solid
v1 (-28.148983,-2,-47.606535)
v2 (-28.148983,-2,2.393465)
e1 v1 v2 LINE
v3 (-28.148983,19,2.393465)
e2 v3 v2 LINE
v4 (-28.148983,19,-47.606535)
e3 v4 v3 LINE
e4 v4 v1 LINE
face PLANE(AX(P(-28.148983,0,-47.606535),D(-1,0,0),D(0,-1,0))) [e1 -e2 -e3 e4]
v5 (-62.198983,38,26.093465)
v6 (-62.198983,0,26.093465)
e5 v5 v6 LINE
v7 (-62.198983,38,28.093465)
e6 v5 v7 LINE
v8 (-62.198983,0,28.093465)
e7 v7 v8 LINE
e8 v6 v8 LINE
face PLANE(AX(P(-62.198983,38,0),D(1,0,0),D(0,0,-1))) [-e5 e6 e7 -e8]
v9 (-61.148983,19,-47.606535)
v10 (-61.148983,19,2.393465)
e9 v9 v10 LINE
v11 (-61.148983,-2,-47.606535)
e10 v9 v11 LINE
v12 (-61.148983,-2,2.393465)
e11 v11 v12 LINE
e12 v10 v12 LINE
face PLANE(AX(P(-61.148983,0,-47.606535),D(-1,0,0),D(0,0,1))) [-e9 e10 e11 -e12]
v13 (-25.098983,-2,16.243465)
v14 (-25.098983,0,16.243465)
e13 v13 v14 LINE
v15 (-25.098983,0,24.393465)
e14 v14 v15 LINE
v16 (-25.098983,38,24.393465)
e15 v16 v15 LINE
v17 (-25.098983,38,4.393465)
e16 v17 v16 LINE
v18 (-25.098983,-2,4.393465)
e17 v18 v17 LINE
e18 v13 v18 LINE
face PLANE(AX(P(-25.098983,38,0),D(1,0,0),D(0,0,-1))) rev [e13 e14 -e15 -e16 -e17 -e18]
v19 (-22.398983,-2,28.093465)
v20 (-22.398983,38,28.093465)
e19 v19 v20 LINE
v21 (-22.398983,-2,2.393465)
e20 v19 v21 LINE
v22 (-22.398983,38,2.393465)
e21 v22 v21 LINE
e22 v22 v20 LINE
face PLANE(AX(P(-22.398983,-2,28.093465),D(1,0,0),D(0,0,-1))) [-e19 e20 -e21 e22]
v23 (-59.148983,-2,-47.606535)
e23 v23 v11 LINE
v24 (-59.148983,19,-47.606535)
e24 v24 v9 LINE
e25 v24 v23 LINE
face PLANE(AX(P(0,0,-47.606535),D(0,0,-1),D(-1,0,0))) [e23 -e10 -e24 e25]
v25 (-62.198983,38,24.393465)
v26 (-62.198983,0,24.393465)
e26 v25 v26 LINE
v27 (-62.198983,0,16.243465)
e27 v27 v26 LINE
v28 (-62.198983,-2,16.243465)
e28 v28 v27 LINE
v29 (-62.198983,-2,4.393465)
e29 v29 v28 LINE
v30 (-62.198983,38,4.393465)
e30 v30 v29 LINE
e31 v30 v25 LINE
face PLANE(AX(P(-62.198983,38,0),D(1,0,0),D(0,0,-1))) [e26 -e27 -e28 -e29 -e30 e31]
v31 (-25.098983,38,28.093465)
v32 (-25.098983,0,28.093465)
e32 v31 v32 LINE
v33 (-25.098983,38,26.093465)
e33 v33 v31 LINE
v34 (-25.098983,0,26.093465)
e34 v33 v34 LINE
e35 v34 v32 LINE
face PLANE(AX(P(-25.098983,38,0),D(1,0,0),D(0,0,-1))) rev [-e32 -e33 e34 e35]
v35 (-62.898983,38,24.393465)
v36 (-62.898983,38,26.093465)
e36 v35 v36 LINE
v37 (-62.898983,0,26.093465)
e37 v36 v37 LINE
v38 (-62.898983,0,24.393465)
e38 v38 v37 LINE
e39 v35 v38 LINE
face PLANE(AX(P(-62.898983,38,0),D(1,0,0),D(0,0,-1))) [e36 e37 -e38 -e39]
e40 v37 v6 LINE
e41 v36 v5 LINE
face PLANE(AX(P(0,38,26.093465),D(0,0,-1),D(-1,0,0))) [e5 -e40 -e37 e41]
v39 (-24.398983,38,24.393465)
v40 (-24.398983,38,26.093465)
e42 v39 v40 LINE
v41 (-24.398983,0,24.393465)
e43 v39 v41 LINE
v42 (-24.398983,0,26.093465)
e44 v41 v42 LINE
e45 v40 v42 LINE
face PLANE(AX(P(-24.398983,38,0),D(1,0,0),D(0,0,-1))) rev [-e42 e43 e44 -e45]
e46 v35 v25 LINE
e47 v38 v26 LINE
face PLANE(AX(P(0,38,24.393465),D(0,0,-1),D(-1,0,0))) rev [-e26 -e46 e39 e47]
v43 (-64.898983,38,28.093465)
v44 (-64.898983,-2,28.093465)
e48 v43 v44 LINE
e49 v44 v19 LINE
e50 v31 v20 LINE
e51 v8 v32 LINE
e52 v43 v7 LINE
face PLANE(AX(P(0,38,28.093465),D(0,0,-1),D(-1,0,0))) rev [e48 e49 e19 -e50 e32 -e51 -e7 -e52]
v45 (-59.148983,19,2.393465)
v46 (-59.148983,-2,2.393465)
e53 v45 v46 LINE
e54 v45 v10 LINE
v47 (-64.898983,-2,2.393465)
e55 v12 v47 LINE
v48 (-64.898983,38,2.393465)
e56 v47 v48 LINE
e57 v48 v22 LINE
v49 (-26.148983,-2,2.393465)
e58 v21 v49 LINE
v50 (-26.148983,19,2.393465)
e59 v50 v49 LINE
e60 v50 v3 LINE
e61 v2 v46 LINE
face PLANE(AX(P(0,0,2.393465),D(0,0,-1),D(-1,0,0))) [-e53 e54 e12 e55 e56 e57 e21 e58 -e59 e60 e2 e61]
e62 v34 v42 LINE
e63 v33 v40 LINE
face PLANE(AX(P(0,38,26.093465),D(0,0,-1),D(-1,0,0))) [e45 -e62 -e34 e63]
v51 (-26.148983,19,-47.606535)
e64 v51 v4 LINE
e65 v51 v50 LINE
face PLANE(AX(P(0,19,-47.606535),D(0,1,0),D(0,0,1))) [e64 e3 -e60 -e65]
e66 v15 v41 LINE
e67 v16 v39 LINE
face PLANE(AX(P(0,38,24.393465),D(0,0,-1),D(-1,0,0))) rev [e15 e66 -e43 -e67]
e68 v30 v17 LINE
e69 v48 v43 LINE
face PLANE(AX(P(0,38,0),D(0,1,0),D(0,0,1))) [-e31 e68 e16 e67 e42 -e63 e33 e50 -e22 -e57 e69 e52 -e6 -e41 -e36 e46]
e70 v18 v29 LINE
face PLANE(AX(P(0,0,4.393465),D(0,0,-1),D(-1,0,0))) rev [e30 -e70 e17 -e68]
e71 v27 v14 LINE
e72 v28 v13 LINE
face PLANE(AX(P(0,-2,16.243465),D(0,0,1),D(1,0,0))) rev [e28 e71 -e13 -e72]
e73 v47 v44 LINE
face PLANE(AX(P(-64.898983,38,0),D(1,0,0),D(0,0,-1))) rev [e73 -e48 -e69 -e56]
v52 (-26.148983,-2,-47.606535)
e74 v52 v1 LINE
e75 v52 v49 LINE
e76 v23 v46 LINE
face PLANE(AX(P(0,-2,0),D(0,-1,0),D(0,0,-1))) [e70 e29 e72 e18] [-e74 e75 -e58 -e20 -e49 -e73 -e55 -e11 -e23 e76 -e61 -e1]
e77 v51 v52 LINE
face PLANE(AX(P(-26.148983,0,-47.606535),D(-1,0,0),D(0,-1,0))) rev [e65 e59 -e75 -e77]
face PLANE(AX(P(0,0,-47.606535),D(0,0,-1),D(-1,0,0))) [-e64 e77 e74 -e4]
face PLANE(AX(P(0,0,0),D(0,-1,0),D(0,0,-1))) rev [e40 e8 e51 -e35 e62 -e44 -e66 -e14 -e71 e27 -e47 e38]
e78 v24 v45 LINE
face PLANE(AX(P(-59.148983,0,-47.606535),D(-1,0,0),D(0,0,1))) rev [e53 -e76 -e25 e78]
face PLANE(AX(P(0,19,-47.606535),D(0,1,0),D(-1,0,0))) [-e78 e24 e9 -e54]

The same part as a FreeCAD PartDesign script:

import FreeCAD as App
import Part
import Sketcher
Q = App.Units.Quantity

doc = App.newDocument("Part")
params = doc.addObject("Spreadsheet::Sheet", "Params")
for row, (alias, value) in enumerate([
    ("sketch1_height", "2 mm"),
    ("sketch1_width", "0.7 mm"),
    ("sketch1_width2", "2.7 mm"),
    ("sketch1_height2", "1.7 mm"),
    ("pad1_length", "38 mm"),
    ("sketch2_height", "2 mm"),
    ("sketch2_width", "0.7 mm"),
    ("sketch2_width2", "2.7 mm"),
    ("sketch2_height2", "1.7 mm"),
    ("pad2_length", "38 mm"),
    ("sketch3_width", "42.5 mm"),
    ("sketch3_height", "5.7 mm"),
    ("pad3_length", "2 mm"),
    ("sketch4_height", "38 mm"),
    ("sketch4_height2", "40 mm"),
    ("sketch4_width", "2.7 mm"),
    ("sketch4_width2", "37.1 mm"),
    ("pad4_length", "18 mm"),
    ("sketch5_height", "40 mm"),
    ("sketch5_width", "42.5 mm"),
    ("pad5_length", "2 mm"),
    ("sketch6_width", "37.1 mm"),
    ("sketch6_height", "11.85 mm"),
    ("sketch7_width", "2 mm"),
    ("sketch7_height", "21 mm"),
    ("pad6_length", "50 mm"),
], start=1):
    params.set(f"A{row}", alias)
    params.set(f"B{row}", "=" + value)
    params.setAlias(f"B{row}", alias)

body = doc.addObject("PartDesign::Body", "Body")

# Sketch on XZ plane
sketch1 = doc.addObject("Sketcher::SketchObject", "Sketch")
body.addObject(sketch1)
sketch1.AttachmentSupport = (doc.XZ_Plane, [""])
sketch1.MapMode = "FlatFace"
sketch1.addGeometry(Part.LineSegment(App.Vector(-62.898983, 26.093465, 0), App.Vector(-62.898983, 24.393465, 0)), False)
sketch1.addGeometry(Part.LineSegment(App.Vector(-62.898983, 24.393465, 0), App.Vector(-62.198983, 24.393465, 0)), False)
sketch1.addGeometry(Part.LineSegment(App.Vector(-62.198983, 24.393465, 0), App.Vector(-62.198983, 22.393465, 0)), False)
sketch1.addGeometry(Part.LineSegment(App.Vector(-62.198983, 22.393465, 0), App.Vector(-64.898983, 22.393465, 0)), False)
sketch1.addGeometry(Part.LineSegment(App.Vector(-64.898983, 22.393465, 0), App.Vector(-64.898983, 28.093465, 0)), False)
sketch1.addGeometry(Part.LineSegment(App.Vector(-64.898983, 28.093465, 0), App.Vector(-62.198983, 28.093465, 0)), False)
sketch1.addGeometry(Part.LineSegment(App.Vector(-62.198983, 28.093465, 0), App.Vector(-62.198983, 26.093465, 0)), False)
sketch1.addGeometry(Part.LineSegment(App.Vector(-62.198983, 26.093465, 0), App.Vector(-62.898983, 26.093465, 0)), False)
sketch1.addConstraint(Sketcher.Constraint("Coincident", 0, 2, 1, 1))
sketch1.addConstraint(Sketcher.Constraint("Coincident", 1, 2, 2, 1))
sketch1.addConstraint(Sketcher.Constraint("Coincident", 2, 2, 3, 1))
sketch1.addConstraint(Sketcher.Constraint("Coincident", 3, 2, 4, 1))
sketch1.addConstraint(Sketcher.Constraint("Coincident", 4, 2, 5, 1))
sketch1.addConstraint(Sketcher.Constraint("Coincident", 5, 2, 6, 1))
sketch1.addConstraint(Sketcher.Constraint("Coincident", 6, 2, 7, 1))
sketch1.addConstraint(Sketcher.Constraint("Coincident", 7, 2, 0, 1))
sketch1.addConstraint(Sketcher.Constraint("Vertical", 0))
sketch1.addConstraint(Sketcher.Constraint("Horizontal", 1))
sketch1.addConstraint(Sketcher.Constraint("Vertical", 2))
sketch1.addConstraint(Sketcher.Constraint("Horizontal", 3))
sketch1.addConstraint(Sketcher.Constraint("Vertical", 4))
sketch1.addConstraint(Sketcher.Constraint("Horizontal", 5))
sketch1.addConstraint(Sketcher.Constraint("Vertical", 6))
sketch1.addConstraint(Sketcher.Constraint("Horizontal", 7))
sketch1.addConstraint(Sketcher.Constraint("Vertical", 2, 2, 5, 2))
sketch1.addConstraint(Sketcher.Constraint("Equal", 2, 6))
sketch1.addConstraint(Sketcher.Constraint("DistanceY", 2, 2, 2, 1, Q("2 mm")))
sketch1.addConstraint(Sketcher.Constraint("DistanceX", 1, 1, 1, 2, Q("0.7 mm")))
sketch1.addConstraint(Sketcher.Constraint("DistanceX", 3, 2, 3, 1, Q("2.7 mm")))
sketch1.addConstraint(Sketcher.Constraint("DistanceY", 0, 2, 0, 1, Q("1.7 mm")))
sketch1.addConstraint(Sketcher.Constraint("DistanceX", 0, 2, -1, 1, Q("62.898983 mm")))
sketch1.addConstraint(Sketcher.Constraint("DistanceY", -1, 1, 0, 2, Q("24.393465 mm")))
sketch1.setExpression("Constraints[18]", "Params.sketch1_height")
sketch1.setExpression("Constraints[19]", "Params.sketch1_width")
sketch1.setExpression("Constraints[20]", "Params.sketch1_width2")
sketch1.setExpression("Constraints[21]", "Params.sketch1_height2")
pad1 = doc.addObject("PartDesign::Pad", "Pad")
body.addObject(pad1)
pad1.Profile = sketch1
pad1.setExpression("Length", "Params.pad1_length")
pad1.Reversed = True
body2 = doc.addObject("PartDesign::Body", "Body001")

# Sketch on XZ plane
sketch2 = doc.addObject("Sketcher::SketchObject", "Sketch001")
body2.addObject(sketch2)
sketch2.AttachmentSupport = (doc.getObject("XZ_Plane001"), [""])
sketch2.MapMode = "FlatFace"
sketch2.addGeometry(Part.LineSegment(App.Vector(-25.098983, 22.393465, 0), App.Vector(-25.098983, 24.393465, 0)), False)
sketch2.addGeometry(Part.LineSegment(App.Vector(-25.098983, 24.393465, 0), App.Vector(-24.398983, 24.393465, 0)), False)
sketch2.addGeometry(Part.LineSegment(App.Vector(-24.398983, 24.393465, 0), App.Vector(-24.398983, 26.093465, 0)), False)
sketch2.addGeometry(Part.LineSegment(App.Vector(-24.398983, 26.093465, 0), App.Vector(-25.098983, 26.093465, 0)), False)
sketch2.addGeometry(Part.LineSegment(App.Vector(-25.098983, 26.093465, 0), App.Vector(-25.098983, 28.093465, 0)), False)
sketch2.addGeometry(Part.LineSegment(App.Vector(-25.098983, 28.093465, 0), App.Vector(-22.398983, 28.093465, 0)), False)
sketch2.addGeometry(Part.LineSegment(App.Vector(-22.398983, 28.093465, 0), App.Vector(-22.398983, 22.393465, 0)), False)
sketch2.addGeometry(Part.LineSegment(App.Vector(-22.398983, 22.393465, 0), App.Vector(-25.098983, 22.393465, 0)), False)
sketch2.addConstraint(Sketcher.Constraint("Coincident", 0, 2, 1, 1))
sketch2.addConstraint(Sketcher.Constraint("Coincident", 1, 2, 2, 1))
sketch2.addConstraint(Sketcher.Constraint("Coincident", 2, 2, 3, 1))
sketch2.addConstraint(Sketcher.Constraint("Coincident", 3, 2, 4, 1))
sketch2.addConstraint(Sketcher.Constraint("Coincident", 4, 2, 5, 1))
sketch2.addConstraint(Sketcher.Constraint("Coincident", 5, 2, 6, 1))
sketch2.addConstraint(Sketcher.Constraint("Coincident", 6, 2, 7, 1))
sketch2.addConstraint(Sketcher.Constraint("Coincident", 7, 2, 0, 1))
sketch2.addConstraint(Sketcher.Constraint("Vertical", 0))
sketch2.addConstraint(Sketcher.Constraint("Horizontal", 1))
sketch2.addConstraint(Sketcher.Constraint("Vertical", 2))
sketch2.addConstraint(Sketcher.Constraint("Horizontal", 3))
sketch2.addConstraint(Sketcher.Constraint("Vertical", 4))
sketch2.addConstraint(Sketcher.Constraint("Horizontal", 5))
sketch2.addConstraint(Sketcher.Constraint("Vertical", 6))
sketch2.addConstraint(Sketcher.Constraint("Horizontal", 7))
sketch2.addConstraint(Sketcher.Constraint("Vertical", 0, 2, 3, 2))
sketch2.addConstraint(Sketcher.Constraint("Equal", 0, 4))
sketch2.addConstraint(Sketcher.Constraint("DistanceY", 0, 1, 0, 2, Q("2 mm")))
sketch2.addConstraint(Sketcher.Constraint("DistanceX", 1, 1, 1, 2, Q("0.7 mm")))
sketch2.addConstraint(Sketcher.Constraint("DistanceX", 5, 1, 5, 2, Q("2.7 mm")))
sketch2.addConstraint(Sketcher.Constraint("DistanceY", 2, 1, 2, 2, Q("1.7 mm")))
sketch2.addConstraint(Sketcher.Constraint("DistanceX", 0, 2, -1, 1, Q("25.098983 mm")))
sketch2.addConstraint(Sketcher.Constraint("DistanceY", -1, 1, 0, 2, Q("24.393465 mm")))
sketch2.setExpression("Constraints[18]", "Params.sketch2_height")
sketch2.setExpression("Constraints[19]", "Params.sketch2_width")
sketch2.setExpression("Constraints[20]", "Params.sketch2_width2")
sketch2.setExpression("Constraints[21]", "Params.sketch2_height2")
pad2 = doc.addObject("PartDesign::Pad", "Pad001")
body2.addObject(pad2)
pad2.Profile = sketch2
pad2.setExpression("Length", "Params.pad2_length")
pad2.Reversed = True
body.AllowCompound = True
doc.recompute()

boolean = doc.addObject("PartDesign::Boolean", "Boolean")
body.addObject(boolean)
boolean.Type = "Fuse"
boolean.addObjects([body2])

# Sketch on XZ plane
sketch3 = doc.addObject("Sketcher::SketchObject", "Sketch002")
body.addObject(sketch3)
sketch3.AttachmentSupport = (doc.XZ_Plane, [""])
sketch3.MapMode = "FlatFace"
sketch3.addGeometry(Part.LineSegment(App.Vector(-64.898983, 22.393465, 0), App.Vector(-64.898983, 28.093465, 0)), False)
sketch3.addGeometry(Part.LineSegment(App.Vector(-64.898983, 28.093465, 0), App.Vector(-22.398983, 28.093465, 0)), False)
sketch3.addGeometry(Part.LineSegment(App.Vector(-22.398983, 28.093465, 0), App.Vector(-22.398983, 22.393465, 0)), False)
sketch3.addGeometry(Part.LineSegment(App.Vector(-22.398983, 22.393465, 0), App.Vector(-64.898983, 22.393465, 0)), False)
sketch3.addConstraint(Sketcher.Constraint("Coincident", 0, 2, 1, 1))
sketch3.addConstraint(Sketcher.Constraint("Coincident", 1, 2, 2, 1))
sketch3.addConstraint(Sketcher.Constraint("Coincident", 2, 2, 3, 1))
sketch3.addConstraint(Sketcher.Constraint("Coincident", 3, 2, 0, 1))
sketch3.addConstraint(Sketcher.Constraint("Vertical", 0))
sketch3.addConstraint(Sketcher.Constraint("Horizontal", 1))
sketch3.addConstraint(Sketcher.Constraint("Vertical", 2))
sketch3.addConstraint(Sketcher.Constraint("Horizontal", 3))
sketch3.addConstraint(Sketcher.Constraint("DistanceX", 1, 1, 1, 2, Q("42.5 mm")))
sketch3.addConstraint(Sketcher.Constraint("DistanceY", 0, 1, 0, 2, Q("5.7 mm")))
sketch3.addConstraint(Sketcher.Constraint("DistanceX", 0, 2, -1, 1, Q("64.898983 mm")))
sketch3.addConstraint(Sketcher.Constraint("DistanceY", -1, 1, 0, 2, Q("28.093465 mm")))
sketch3.setExpression("Constraints[8]", "Params.sketch3_width")
sketch3.setExpression("Constraints[9]", "Params.sketch3_height")
pad3 = doc.addObject("PartDesign::Pad", "Pad002")
body.addObject(pad3)
pad3.Profile = sketch3
pad3.setExpression("Length", "Params.pad3_length")

# Sketch on XY plane
sketch4 = doc.addObject("Sketcher::SketchObject", "Sketch003")
body.addObject(sketch4)
sketch4.AttachmentSupport = (doc.XY_Plane, [""])
sketch4.MapMode = "FlatFace"
sketch4.AttachmentOffset = App.Placement(App.Vector(0, 0, 22.393465), App.Rotation())
sketch4.addGeometry(Part.LineSegment(App.Vector(-64.898983, 38, 0), App.Vector(-62.198983, 38, 0)), False)
sketch4.addGeometry(Part.LineSegment(App.Vector(-62.198983, 38, 0), App.Vector(-62.198983, 0, 0)), False)
sketch4.addGeometry(Part.LineSegment(App.Vector(-62.198983, 0, 0), App.Vector(-25.098983, 0, 0)), False)
sketch4.addGeometry(Part.LineSegment(App.Vector(-25.098983, 0, 0), App.Vector(-25.098983, 38, 0)), False)
sketch4.addGeometry(Part.LineSegment(App.Vector(-25.098983, 38, 0), App.Vector(-22.398983, 38, 0)), False)
sketch4.addGeometry(Part.LineSegment(App.Vector(-22.398983, 38, 0), App.Vector(-22.398983, -2, 0)), False)
sketch4.addGeometry(Part.LineSegment(App.Vector(-22.398983, -2, 0), App.Vector(-64.898983, -2, 0)), False)
sketch4.addGeometry(Part.LineSegment(App.Vector(-64.898983, -2, 0), App.Vector(-64.898983, 38, 0)), False)
sketch4.addConstraint(Sketcher.Constraint("Coincident", 0, 2, 1, 1))
sketch4.addConstraint(Sketcher.Constraint("Coincident", 1, 2, 2, 1))
sketch4.addConstraint(Sketcher.Constraint("Coincident", 2, 2, 3, 1))
sketch4.addConstraint(Sketcher.Constraint("Coincident", 3, 2, 4, 1))
sketch4.addConstraint(Sketcher.Constraint("Coincident", 4, 2, 5, 1))
sketch4.addConstraint(Sketcher.Constraint("Coincident", 5, 2, 6, 1))
sketch4.addConstraint(Sketcher.Constraint("Coincident", 6, 2, 7, 1))
sketch4.addConstraint(Sketcher.Constraint("Coincident", 7, 2, 0, 1))
sketch4.addConstraint(Sketcher.Constraint("Horizontal", 0))
sketch4.addConstraint(Sketcher.Constraint("Vertical", 1))
sketch4.addConstraint(Sketcher.Constraint("Horizontal", 2))
sketch4.addConstraint(Sketcher.Constraint("Vertical", 3))
sketch4.addConstraint(Sketcher.Constraint("Horizontal", 4))
sketch4.addConstraint(Sketcher.Constraint("Vertical", 5))
sketch4.addConstraint(Sketcher.Constraint("Horizontal", 6))
sketch4.addConstraint(Sketcher.Constraint("Vertical", 7))
sketch4.addConstraint(Sketcher.Constraint("PointOnObject", 1, 2, -1))
sketch4.addConstraint(Sketcher.Constraint("Horizontal", 0, 2, 3, 2))
sketch4.addConstraint(Sketcher.Constraint("Equal", 0, 4))
sketch4.addConstraint(Sketcher.Constraint("DistanceY", 1, 2, 1, 1, Q("38 mm")))
sketch4.addConstraint(Sketcher.Constraint("DistanceY", 5, 2, 5, 1, Q("40 mm")))
sketch4.addConstraint(Sketcher.Constraint("DistanceX", 0, 1, 0, 2, Q("2.7 mm")))
sketch4.addConstraint(Sketcher.Constraint("DistanceX", 2, 1, 2, 2, Q("37.1 mm")))
sketch4.addConstraint(Sketcher.Constraint("DistanceX", 0, 2, -1, 1, Q("62.198983 mm")))
sketch4.setExpression("Constraints[19]", "Params.sketch4_height")
sketch4.setExpression("Constraints[20]", "Params.sketch4_height2")
sketch4.setExpression("Constraints[21]", "Params.sketch4_width")
sketch4.setExpression("Constraints[22]", "Params.sketch4_width2")
pad4 = doc.addObject("PartDesign::Pad", "Pad003")
body.addObject(pad4)
pad4.Profile = sketch4
pad4.setExpression("Length", "Params.pad4_length")
pad4.Reversed = True

# Sketch on XY plane
sketch5 = doc.addObject("Sketcher::SketchObject", "Sketch004")
body.addObject(sketch5)
sketch5.AttachmentSupport = (doc.XY_Plane, [""])
sketch5.MapMode = "FlatFace"
sketch5.AttachmentOffset = App.Placement(App.Vector(0, 0, 4.393465), App.Rotation())
sketch5.addGeometry(Part.LineSegment(App.Vector(-22.398983, 38, 0), App.Vector(-22.398983, -2, 0)), False)
sketch5.addGeometry(Part.LineSegment(App.Vector(-22.398983, -2, 0), App.Vector(-64.898983, -2, 0)), False)
sketch5.addGeometry(Part.LineSegment(App.Vector(-64.898983, -2, 0), App.Vector(-64.898983, 38, 0)), False)
sketch5.addGeometry(Part.LineSegment(App.Vector(-64.898983, 38, 0), App.Vector(-22.398983, 38, 0)), False)
sketch5.addConstraint(Sketcher.Constraint("Coincident", 0, 2, 1, 1))
sketch5.addConstraint(Sketcher.Constraint("Coincident", 1, 2, 2, 1))
sketch5.addConstraint(Sketcher.Constraint("Coincident", 2, 2, 3, 1))
sketch5.addConstraint(Sketcher.Constraint("Coincident", 3, 2, 0, 1))
sketch5.addConstraint(Sketcher.Constraint("Vertical", 0))
sketch5.addConstraint(Sketcher.Constraint("Horizontal", 1))
sketch5.addConstraint(Sketcher.Constraint("Vertical", 2))
sketch5.addConstraint(Sketcher.Constraint("Horizontal", 3))
sketch5.addConstraint(Sketcher.Constraint("DistanceY", 0, 2, 0, 1, Q("40 mm")))
sketch5.addConstraint(Sketcher.Constraint("DistanceX", 1, 2, 1, 1, Q("42.5 mm")))
sketch5.addConstraint(Sketcher.Constraint("DistanceY", 0, 2, -1, 1, Q("2 mm")))
sketch5.addConstraint(Sketcher.Constraint("DistanceX", 0, 2, -1, 1, Q("22.398983 mm")))
sketch5.setExpression("Constraints[8]", "Params.sketch5_height")
sketch5.setExpression("Constraints[9]", "Params.sketch5_width")
pad5 = doc.addObject("PartDesign::Pad", "Pad004")
body.addObject(pad5)
pad5.Profile = sketch5
pad5.setExpression("Length", "Params.pad5_length")
pad5.Reversed = True

# Sketch on XZ plane
sketch6 = doc.addObject("Sketcher::SketchObject", "Sketch005")
body.addObject(sketch6)
sketch6.AttachmentSupport = (doc.XZ_Plane, [""])
sketch6.MapMode = "FlatFace"
sketch6.addGeometry(Part.LineSegment(App.Vector(-62.198983, 4.393465, 0), App.Vector(-62.198983, 16.243465, 0)), False)
sketch6.addGeometry(Part.LineSegment(App.Vector(-62.198983, 16.243465, 0), App.Vector(-25.098983, 16.243465, 0)), False)
sketch6.addGeometry(Part.LineSegment(App.Vector(-25.098983, 16.243465, 0), App.Vector(-25.098983, 4.393465, 0)), False)
sketch6.addGeometry(Part.LineSegment(App.Vector(-25.098983, 4.393465, 0), App.Vector(-62.198983, 4.393465, 0)), False)
sketch6.addConstraint(Sketcher.Constraint("Coincident", 0, 2, 1, 1))
sketch6.addConstraint(Sketcher.Constraint("Coincident", 1, 2, 2, 1))
sketch6.addConstraint(Sketcher.Constraint("Coincident", 2, 2, 3, 1))
sketch6.addConstraint(Sketcher.Constraint("Coincident", 3, 2, 0, 1))
sketch6.addConstraint(Sketcher.Constraint("Vertical", 0))
sketch6.addConstraint(Sketcher.Constraint("Horizontal", 1))
sketch6.addConstraint(Sketcher.Constraint("Vertical", 2))
sketch6.addConstraint(Sketcher.Constraint("Horizontal", 3))
sketch6.addConstraint(Sketcher.Constraint("DistanceX", 1, 1, 1, 2, Q("37.1 mm")))
sketch6.addConstraint(Sketcher.Constraint("DistanceY", 0, 1, 0, 2, Q("11.85 mm")))
sketch6.addConstraint(Sketcher.Constraint("DistanceX", 0, 2, -1, 1, Q("62.198983 mm")))
sketch6.addConstraint(Sketcher.Constraint("DistanceY", -1, 1, 0, 2, Q("16.243465 mm")))
sketch6.setExpression("Constraints[8]", "Params.sketch6_width")
sketch6.setExpression("Constraints[9]", "Params.sketch6_height")
pocket1 = doc.addObject("PartDesign::Pocket", "Pocket")
body.addObject(pocket1)
pocket1.Profile = sketch6
pocket1.Type = "ThroughAll"
pocket1.Reversed = True

# Sketch on XY plane
sketch7 = doc.addObject("Sketcher::SketchObject", "Sketch006")
body.addObject(sketch7)
sketch7.AttachmentSupport = (doc.XY_Plane, [""])
sketch7.MapMode = "FlatFace"
sketch7.AttachmentOffset = App.Placement(App.Vector(0, 0, 2.393465), App.Rotation())
sketch7.addGeometry(Part.LineSegment(App.Vector(-26.148983, 19, 0), App.Vector(-26.148983, -2, 0)), False)
sketch7.addGeometry(Part.LineSegment(App.Vector(-26.148983, -2, 0), App.Vector(-28.148983, -2, 0)), False)
sketch7.addGeometry(Part.LineSegment(App.Vector(-28.148983, -2, 0), App.Vector(-28.148983, 19, 0)), False)
sketch7.addGeometry(Part.LineSegment(App.Vector(-28.148983, 19, 0), App.Vector(-26.148983, 19, 0)), False)
sketch7.addGeometry(Part.LineSegment(App.Vector(-59.148983, 19, 0), App.Vector(-59.148983, -2, 0)), False)
sketch7.addGeometry(Part.LineSegment(App.Vector(-59.148983, -2, 0), App.Vector(-61.148983, -2, 0)), False)
sketch7.addGeometry(Part.LineSegment(App.Vector(-61.148983, -2, 0), App.Vector(-61.148983, 19, 0)), False)
sketch7.addGeometry(Part.LineSegment(App.Vector(-61.148983, 19, 0), App.Vector(-59.148983, 19, 0)), False)
sketch7.addConstraint(Sketcher.Constraint("Coincident", 0, 2, 1, 1))
sketch7.addConstraint(Sketcher.Constraint("Coincident", 1, 2, 2, 1))
sketch7.addConstraint(Sketcher.Constraint("Coincident", 2, 2, 3, 1))
sketch7.addConstraint(Sketcher.Constraint("Coincident", 3, 2, 0, 1))
sketch7.addConstraint(Sketcher.Constraint("Coincident", 4, 2, 5, 1))
sketch7.addConstraint(Sketcher.Constraint("Coincident", 5, 2, 6, 1))
sketch7.addConstraint(Sketcher.Constraint("Coincident", 6, 2, 7, 1))
sketch7.addConstraint(Sketcher.Constraint("Coincident", 7, 2, 4, 1))
sketch7.addConstraint(Sketcher.Constraint("Vertical", 0))
sketch7.addConstraint(Sketcher.Constraint("Horizontal", 1))
sketch7.addConstraint(Sketcher.Constraint("Vertical", 2))
sketch7.addConstraint(Sketcher.Constraint("Horizontal", 3))
sketch7.addConstraint(Sketcher.Constraint("Vertical", 4))
sketch7.addConstraint(Sketcher.Constraint("Horizontal", 5))
sketch7.addConstraint(Sketcher.Constraint("Vertical", 6))
sketch7.addConstraint(Sketcher.Constraint("Horizontal", 7))
sketch7.addConstraint(Sketcher.Constraint("Horizontal", 1, 2, 4, 2))
sketch7.addConstraint(Sketcher.Constraint("Horizontal", 3, 2, 6, 2))
sketch7.addConstraint(Sketcher.Constraint("Equal", 3, 5))
sketch7.addConstraint(Sketcher.Constraint("DistanceX", 1, 2, 1, 1, Q("2 mm")))
sketch7.addConstraint(Sketcher.Constraint("DistanceY", 0, 2, 0, 1, Q("21 mm")))
sketch7.addConstraint(Sketcher.Constraint("DistanceY", 0, 2, -1, 1, Q("2 mm")))
sketch7.addConstraint(Sketcher.Constraint("DistanceX", 4, 2, 1, 2, Q("31 mm")))
sketch7.addConstraint(Sketcher.Constraint("DistanceX", 0, 2, -1, 1, Q("26.148983 mm")))
sketch7.setExpression("Constraints[19]", "Params.sketch7_width")
sketch7.setExpression("Constraints[20]", "Params.sketch7_height")
pad6 = doc.addObject("PartDesign::Pad", "Pad005")
body.addObject(pad6)
pad6.Profile = sketch7
pad6.setExpression("Length", "Params.pad6_length")
pad6.Reversed = True

doc.recompute()
